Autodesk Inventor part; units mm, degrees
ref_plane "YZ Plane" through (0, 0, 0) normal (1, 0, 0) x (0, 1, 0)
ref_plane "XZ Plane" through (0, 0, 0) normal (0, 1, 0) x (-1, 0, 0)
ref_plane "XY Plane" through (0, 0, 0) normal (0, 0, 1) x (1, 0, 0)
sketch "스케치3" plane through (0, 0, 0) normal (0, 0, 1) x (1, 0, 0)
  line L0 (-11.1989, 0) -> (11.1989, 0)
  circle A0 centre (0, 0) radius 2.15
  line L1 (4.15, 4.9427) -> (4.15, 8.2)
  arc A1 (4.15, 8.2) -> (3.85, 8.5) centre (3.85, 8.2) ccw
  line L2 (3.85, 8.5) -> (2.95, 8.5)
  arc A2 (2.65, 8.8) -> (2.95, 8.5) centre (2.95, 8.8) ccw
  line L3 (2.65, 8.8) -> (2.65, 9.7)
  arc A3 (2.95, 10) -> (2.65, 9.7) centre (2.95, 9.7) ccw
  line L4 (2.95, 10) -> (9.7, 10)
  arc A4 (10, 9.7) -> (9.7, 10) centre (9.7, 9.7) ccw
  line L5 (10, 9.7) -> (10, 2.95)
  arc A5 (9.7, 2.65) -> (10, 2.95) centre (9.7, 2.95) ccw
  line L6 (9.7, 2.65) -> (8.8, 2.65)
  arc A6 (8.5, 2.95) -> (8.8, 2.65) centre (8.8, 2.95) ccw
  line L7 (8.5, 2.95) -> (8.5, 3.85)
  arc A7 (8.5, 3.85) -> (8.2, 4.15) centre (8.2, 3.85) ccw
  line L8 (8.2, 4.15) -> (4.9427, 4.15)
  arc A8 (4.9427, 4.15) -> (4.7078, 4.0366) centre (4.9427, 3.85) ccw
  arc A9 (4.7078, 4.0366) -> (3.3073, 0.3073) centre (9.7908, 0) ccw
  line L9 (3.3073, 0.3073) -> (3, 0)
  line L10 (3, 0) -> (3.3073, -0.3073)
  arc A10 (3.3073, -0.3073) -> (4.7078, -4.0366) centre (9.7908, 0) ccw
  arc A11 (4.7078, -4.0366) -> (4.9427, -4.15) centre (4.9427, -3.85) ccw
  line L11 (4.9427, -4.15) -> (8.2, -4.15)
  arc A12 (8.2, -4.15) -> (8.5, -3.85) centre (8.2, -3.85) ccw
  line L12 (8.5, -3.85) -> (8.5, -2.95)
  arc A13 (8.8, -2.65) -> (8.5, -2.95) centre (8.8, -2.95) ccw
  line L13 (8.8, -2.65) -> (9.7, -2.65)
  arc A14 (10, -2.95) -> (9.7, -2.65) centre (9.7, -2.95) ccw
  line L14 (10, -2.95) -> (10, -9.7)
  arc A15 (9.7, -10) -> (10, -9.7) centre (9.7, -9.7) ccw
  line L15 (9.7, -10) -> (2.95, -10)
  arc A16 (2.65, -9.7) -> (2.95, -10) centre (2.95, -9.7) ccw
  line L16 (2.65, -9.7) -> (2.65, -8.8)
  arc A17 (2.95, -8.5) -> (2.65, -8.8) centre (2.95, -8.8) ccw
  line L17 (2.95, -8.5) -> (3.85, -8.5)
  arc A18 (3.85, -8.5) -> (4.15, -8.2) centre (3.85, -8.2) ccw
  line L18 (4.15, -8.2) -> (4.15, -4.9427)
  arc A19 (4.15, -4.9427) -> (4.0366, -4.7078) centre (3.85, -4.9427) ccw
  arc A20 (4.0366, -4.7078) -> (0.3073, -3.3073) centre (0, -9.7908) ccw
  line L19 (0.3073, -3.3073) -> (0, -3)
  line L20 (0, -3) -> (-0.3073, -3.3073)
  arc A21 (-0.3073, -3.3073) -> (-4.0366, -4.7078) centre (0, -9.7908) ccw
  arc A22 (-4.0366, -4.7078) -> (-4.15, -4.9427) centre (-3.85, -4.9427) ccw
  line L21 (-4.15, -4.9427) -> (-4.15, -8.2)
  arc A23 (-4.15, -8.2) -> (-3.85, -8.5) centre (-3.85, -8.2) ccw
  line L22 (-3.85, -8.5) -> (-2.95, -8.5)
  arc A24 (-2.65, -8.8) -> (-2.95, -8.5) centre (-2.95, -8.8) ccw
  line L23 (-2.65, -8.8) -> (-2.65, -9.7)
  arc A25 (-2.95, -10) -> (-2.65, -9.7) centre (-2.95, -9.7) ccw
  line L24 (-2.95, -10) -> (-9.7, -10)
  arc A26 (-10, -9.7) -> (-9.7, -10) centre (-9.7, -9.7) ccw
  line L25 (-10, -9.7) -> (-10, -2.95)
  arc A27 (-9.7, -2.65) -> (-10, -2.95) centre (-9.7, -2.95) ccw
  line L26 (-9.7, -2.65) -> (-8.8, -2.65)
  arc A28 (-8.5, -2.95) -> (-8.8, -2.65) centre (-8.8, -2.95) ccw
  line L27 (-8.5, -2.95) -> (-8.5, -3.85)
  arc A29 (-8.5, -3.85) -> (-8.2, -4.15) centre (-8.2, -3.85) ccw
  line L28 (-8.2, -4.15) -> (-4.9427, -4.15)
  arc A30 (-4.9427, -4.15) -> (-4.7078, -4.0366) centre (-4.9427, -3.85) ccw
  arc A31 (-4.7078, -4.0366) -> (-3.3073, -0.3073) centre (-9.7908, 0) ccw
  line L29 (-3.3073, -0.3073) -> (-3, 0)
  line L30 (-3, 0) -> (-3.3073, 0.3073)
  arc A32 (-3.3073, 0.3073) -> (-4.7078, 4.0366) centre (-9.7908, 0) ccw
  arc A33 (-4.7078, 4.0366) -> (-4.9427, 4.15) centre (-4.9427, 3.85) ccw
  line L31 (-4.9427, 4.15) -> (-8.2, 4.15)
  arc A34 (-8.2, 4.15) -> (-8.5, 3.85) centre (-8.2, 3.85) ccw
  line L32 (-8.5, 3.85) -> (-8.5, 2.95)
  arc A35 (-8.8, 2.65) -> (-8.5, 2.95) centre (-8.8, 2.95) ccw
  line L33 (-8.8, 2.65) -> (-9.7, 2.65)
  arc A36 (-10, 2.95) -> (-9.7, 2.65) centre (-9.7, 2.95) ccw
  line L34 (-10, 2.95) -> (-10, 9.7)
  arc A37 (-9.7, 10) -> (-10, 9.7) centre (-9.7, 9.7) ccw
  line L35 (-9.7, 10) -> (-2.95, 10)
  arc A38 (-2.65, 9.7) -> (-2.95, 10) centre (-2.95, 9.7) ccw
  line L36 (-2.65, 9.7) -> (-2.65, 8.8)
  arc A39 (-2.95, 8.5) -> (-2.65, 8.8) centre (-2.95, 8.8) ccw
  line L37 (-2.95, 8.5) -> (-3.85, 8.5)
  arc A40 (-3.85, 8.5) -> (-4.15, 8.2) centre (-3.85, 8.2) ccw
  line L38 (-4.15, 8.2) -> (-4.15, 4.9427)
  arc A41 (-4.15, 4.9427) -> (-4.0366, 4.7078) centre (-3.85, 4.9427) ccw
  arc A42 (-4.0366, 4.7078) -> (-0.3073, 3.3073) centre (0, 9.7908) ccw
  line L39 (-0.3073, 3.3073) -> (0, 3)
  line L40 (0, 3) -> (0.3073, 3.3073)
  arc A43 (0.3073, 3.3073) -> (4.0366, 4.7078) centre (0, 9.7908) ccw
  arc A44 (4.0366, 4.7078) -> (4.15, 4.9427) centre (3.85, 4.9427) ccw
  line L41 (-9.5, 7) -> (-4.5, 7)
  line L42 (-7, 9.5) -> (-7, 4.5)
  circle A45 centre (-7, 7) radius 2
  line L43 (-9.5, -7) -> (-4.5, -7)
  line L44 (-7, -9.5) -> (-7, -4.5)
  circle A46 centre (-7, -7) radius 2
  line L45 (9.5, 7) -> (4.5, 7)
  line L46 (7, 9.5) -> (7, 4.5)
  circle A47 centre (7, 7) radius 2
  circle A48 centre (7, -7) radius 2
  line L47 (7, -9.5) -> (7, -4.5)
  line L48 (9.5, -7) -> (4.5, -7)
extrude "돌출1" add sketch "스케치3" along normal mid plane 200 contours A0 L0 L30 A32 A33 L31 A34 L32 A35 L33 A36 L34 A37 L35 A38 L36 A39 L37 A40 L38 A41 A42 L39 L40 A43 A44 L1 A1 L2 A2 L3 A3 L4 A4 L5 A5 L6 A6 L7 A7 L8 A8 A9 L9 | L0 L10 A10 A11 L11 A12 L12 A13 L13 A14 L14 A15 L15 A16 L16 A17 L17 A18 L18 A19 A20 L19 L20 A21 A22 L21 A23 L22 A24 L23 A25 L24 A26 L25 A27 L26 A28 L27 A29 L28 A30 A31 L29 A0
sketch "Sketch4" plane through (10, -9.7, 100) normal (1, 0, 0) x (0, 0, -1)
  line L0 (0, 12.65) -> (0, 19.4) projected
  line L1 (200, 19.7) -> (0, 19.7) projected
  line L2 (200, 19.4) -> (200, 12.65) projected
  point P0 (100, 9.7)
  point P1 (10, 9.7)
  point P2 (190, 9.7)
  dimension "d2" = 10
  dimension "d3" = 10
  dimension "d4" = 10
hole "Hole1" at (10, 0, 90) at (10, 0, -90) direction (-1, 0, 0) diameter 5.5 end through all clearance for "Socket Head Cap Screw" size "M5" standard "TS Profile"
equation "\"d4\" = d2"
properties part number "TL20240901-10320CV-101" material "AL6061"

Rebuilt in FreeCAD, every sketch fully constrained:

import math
import FreeCAD as App
import Part
import Sketcher
from FreeCAD import Vector

doc = App.newDocument("Part")
body = doc.addObject("PartDesign::Body", "Body")

# Sketch on XY plane
sketch1 = body.newObject("Sketcher::SketchObject", "Sketch")
sketch1.AttachmentSupport = (doc.getObject("XY_Plane"), [""])
sketch1.MapMode = "FlatFace"
sketch1.addGeometry([
    Part.LineSegment(Vector(-3.3073, 0.3073, 0), Vector(-3, 0, 0)),  # 0
    Part.LineSegment(Vector(-3, 0, 0), Vector(-3.3073, -0.3073, 0)),  # 1
    Part.ArcOfCircle(Part.Circle(Vector(-9.7908, 0, 0), Vector(0, 0, 1), 6.490779), math.radians(-38.4544), math.radians(-2.713631)),  # 2
    Part.ArcOfCircle(Part.Circle(Vector(-4.9427, -3.85, 0), Vector(0, 0, 1), 0.3), math.radians(-90), math.radians(-38.462947)),  # 3
    Part.LineSegment(Vector(-4.9427, -4.15, 0), Vector(-8.2, -4.15, 0)),  # 4
    Part.ArcOfCircle(Part.Circle(Vector(-8.2, -3.85, 0), Vector(0, 0, 1), 0.3), math.radians(180), math.radians(270)),  # 5
    Part.LineSegment(Vector(-8.5, -3.85, 0), Vector(-8.5, -2.95, 0)),  # 6
    Part.ArcOfCircle(Part.Circle(Vector(-8.8, -2.95, 0), Vector(0, 0, 1), 0.3), math.radians(0), math.radians(90)),  # 7
    Part.LineSegment(Vector(-8.8, -2.65, 0), Vector(-9.7, -2.65, 0)),  # 8
    Part.ArcOfCircle(Part.Circle(Vector(-9.7, -2.95, 0), Vector(0, 0, 1), 0.3), math.radians(90), math.radians(180)),  # 9
    Part.LineSegment(Vector(-10, -2.95, 0), Vector(-10, -9.7, 0)),  # 10
    Part.ArcOfCircle(Part.Circle(Vector(-9.7, -9.7, 0), Vector(0, 0, 1), 0.3), math.radians(180), math.radians(270)),  # 11
    Part.LineSegment(Vector(-9.7, -10, 0), Vector(-2.95, -10, 0)),  # 12
    Part.ArcOfCircle(Part.Circle(Vector(-2.95, -9.7, 0), Vector(0, 0, 1), 0.3), math.radians(-90), math.radians(0)),  # 13
    Part.LineSegment(Vector(-2.65, -9.7, 0), Vector(-2.65, -8.8, 0)),  # 14
    Part.ArcOfCircle(Part.Circle(Vector(-2.95, -8.8, 0), Vector(0, 0, 1), 0.3), math.radians(0), math.radians(90)),  # 15
    Part.LineSegment(Vector(-2.95, -8.5, 0), Vector(-3.85, -8.5, 0)),  # 16
    Part.ArcOfCircle(Part.Circle(Vector(-3.85, -8.2, 0), Vector(0, 0, 1), 0.3), math.radians(180), math.radians(270)),  # 17
    Part.LineSegment(Vector(-4.15, -8.2, 0), Vector(-4.15, -4.9427, 0)),  # 18
    Part.ArcOfCircle(Part.Circle(Vector(-3.85, -4.9427, 0), Vector(0, 0, 1), 0.299996), math.radians(128.462947), math.radians(180)),  # 19
    Part.ArcOfCircle(Part.Circle(Vector(0, -9.7908, 0), Vector(0, 0, 1), 6.490842), math.radians(92.713631), math.radians(128.4544)),  # 20
    Part.LineSegment(Vector(-0.3073, -3.3073, 0), Vector(0, -3, 0)),  # 21
    Part.LineSegment(Vector(0, -3, 0), Vector(0.3073, -3.3073, 0)),  # 22
    Part.ArcOfCircle(Part.Circle(Vector(0, -9.7908, 0), Vector(0, 0, 1), 6.490779), math.radians(51.5456), math.radians(87.286369)),  # 23
    Part.ArcOfCircle(Part.Circle(Vector(3.85, -4.9427, 0), Vector(0, 0, 1), 0.3), math.radians(0), math.radians(51.537053)),  # 24
    Part.LineSegment(Vector(4.15, -4.9427, 0), Vector(4.15, -8.2, 0)),  # 25
    Part.ArcOfCircle(Part.Circle(Vector(3.85, -8.2, 0), Vector(0, 0, 1), 0.3), math.radians(-90), math.radians(0)),  # 26
    Part.LineSegment(Vector(3.85, -8.5, 0), Vector(2.95, -8.5, 0)),  # 27
    Part.ArcOfCircle(Part.Circle(Vector(2.95, -8.8, 0), Vector(0, 0, 1), 0.3), math.radians(90), math.radians(180)),  # 28
    Part.LineSegment(Vector(2.65, -8.8, 0), Vector(2.65, -9.7, 0)),  # 29
    Part.ArcOfCircle(Part.Circle(Vector(2.95, -9.7, 0), Vector(0, 0, 1), 0.3), math.radians(180), math.radians(270)),  # 30
    Part.LineSegment(Vector(2.95, -10, 0), Vector(9.7, -10, 0)),  # 31
    Part.ArcOfCircle(Part.Circle(Vector(9.7, -9.7, 0), Vector(0, 0, 1), 0.3), math.radians(-90), math.radians(0)),  # 32
    Part.LineSegment(Vector(10, -9.7, 0), Vector(10, -2.95, 0)),  # 33
    Part.ArcOfCircle(Part.Circle(Vector(9.7, -2.95, 0), Vector(0, 0, 1), 0.3), math.radians(0), math.radians(90)),  # 34
    Part.LineSegment(Vector(9.7, -2.65, 0), Vector(8.8, -2.65, 0)),  # 35
    Part.ArcOfCircle(Part.Circle(Vector(8.8, -2.95, 0), Vector(0, 0, 1), 0.3), math.radians(90), math.radians(180)),  # 36
    Part.LineSegment(Vector(8.5, -2.95, 0), Vector(8.5, -3.85, 0)),  # 37
    Part.ArcOfCircle(Part.Circle(Vector(8.2, -3.85, 0), Vector(0, 0, 1), 0.3), math.radians(-90), math.radians(0)),  # 38
    Part.LineSegment(Vector(8.2, -4.15, 0), Vector(4.9427, -4.15, 0)),  # 39
    Part.ArcOfCircle(Part.Circle(Vector(4.9427, -3.85, 0), Vector(0, 0, 1), 0.299996), math.radians(-141.537053), math.radians(-90)),  # 40
    Part.ArcOfCircle(Part.Circle(Vector(9.7908, 0, 0), Vector(0, 0, 1), 6.490842), math.radians(-177.286369), math.radians(-141.5456)),  # 41
    Part.LineSegment(Vector(3.3073, -0.3073, 0), Vector(3, 0, 0)),  # 42
    Part.LineSegment(Vector(3, 0, 0), Vector(3.3073, 0.3073, 0)),  # 43
    Part.ArcOfCircle(Part.Circle(Vector(9.7908, 0, 0), Vector(0, 0, 1), 6.490779), math.radians(141.5456), math.radians(177.286369)),  # 44
    Part.ArcOfCircle(Part.Circle(Vector(4.9427, 3.85, 0), Vector(0, 0, 1), 0.3), math.radians(90), math.radians(141.537053)),  # 45
    Part.LineSegment(Vector(4.9427, 4.15, 0), Vector(8.2, 4.15, 0)),  # 46
    Part.ArcOfCircle(Part.Circle(Vector(8.2, 3.85, 0), Vector(0, 0, 1), 0.3), math.radians(0), math.radians(90)),  # 47
    Part.LineSegment(Vector(8.5, 3.85, 0), Vector(8.5, 2.95, 0)),  # 48
    Part.ArcOfCircle(Part.Circle(Vector(8.8, 2.95, 0), Vector(0, 0, 1), 0.3), math.radians(180), math.radians(270)),  # 49
    Part.LineSegment(Vector(8.8, 2.65, 0), Vector(9.7, 2.65, 0)),  # 50
    Part.ArcOfCircle(Part.Circle(Vector(9.7, 2.95, 0), Vector(0, 0, 1), 0.3), math.radians(-90), math.radians(0)),  # 51
    Part.LineSegment(Vector(10, 2.95, 0), Vector(10, 9.7, 0)),  # 52
    Part.ArcOfCircle(Part.Circle(Vector(9.7, 9.7, 0), Vector(0, 0, 1), 0.3), math.radians(0), math.radians(90)),  # 53
    Part.LineSegment(Vector(9.7, 10, 0), Vector(2.95, 10, 0)),  # 54
    Part.ArcOfCircle(Part.Circle(Vector(2.95, 9.7, 0), Vector(0, 0, 1), 0.3), math.radians(90), math.radians(180)),  # 55
    Part.LineSegment(Vector(2.65, 9.7, 0), Vector(2.65, 8.8, 0)),  # 56
    Part.ArcOfCircle(Part.Circle(Vector(2.95, 8.8, 0), Vector(0, 0, 1), 0.3), math.radians(180), math.radians(270)),  # 57
    Part.LineSegment(Vector(2.95, 8.5, 0), Vector(3.85, 8.5, 0)),  # 58
    Part.ArcOfCircle(Part.Circle(Vector(3.85, 8.2, 0), Vector(0, 0, 1), 0.3), math.radians(0), math.radians(90)),  # 59
    Part.LineSegment(Vector(4.15, 8.2, 0), Vector(4.15, 4.9427, 0)),  # 60
    Part.ArcOfCircle(Part.Circle(Vector(3.85, 4.9427, 0), Vector(0, 0, 1), 0.299996), math.radians(-51.537053), math.radians(0)),  # 61
    Part.ArcOfCircle(Part.Circle(Vector(0, 9.7908, 0), Vector(0, 0, 1), 6.490842), math.radians(-87.286369), math.radians(-51.5456)),  # 62
    Part.LineSegment(Vector(0.3073, 3.3073, 0), Vector(0, 3, 0)),  # 63
    Part.LineSegment(Vector(0, 3, 0), Vector(-0.3073, 3.3073, 0)),  # 64
    Part.ArcOfCircle(Part.Circle(Vector(0, 9.7908, 0), Vector(0, 0, 1), 6.490779), math.radians(-128.4544), math.radians(-92.713631)),  # 65
    Part.ArcOfCircle(Part.Circle(Vector(-3.85, 4.9427, 0), Vector(0, 0, 1), 0.3), math.radians(180), math.radians(231.537053)),  # 66
    Part.LineSegment(Vector(-4.15, 4.9427, 0), Vector(-4.15, 8.2, 0)),  # 67
    Part.ArcOfCircle(Part.Circle(Vector(-3.85, 8.2, 0), Vector(0, 0, 1), 0.3), math.radians(90), math.radians(180)),  # 68
    Part.LineSegment(Vector(-3.85, 8.5, 0), Vector(-2.95, 8.5, 0)),  # 69
    Part.ArcOfCircle(Part.Circle(Vector(-2.95, 8.8, 0), Vector(0, 0, 1), 0.3), math.radians(-90), math.radians(0)),  # 70
    Part.LineSegment(Vector(-2.65, 8.8, 0), Vector(-2.65, 9.7, 0)),  # 71
    Part.ArcOfCircle(Part.Circle(Vector(-2.95, 9.7, 0), Vector(0, 0, 1), 0.3), math.radians(0), math.radians(90)),  # 72
    Part.LineSegment(Vector(-2.95, 10, 0), Vector(-9.7, 10, 0)),  # 73
    Part.ArcOfCircle(Part.Circle(Vector(-9.7, 9.7, 0), Vector(0, 0, 1), 0.3), math.radians(90), math.radians(180)),  # 74
    Part.LineSegment(Vector(-10, 9.7, 0), Vector(-10, 2.95, 0)),  # 75
    Part.ArcOfCircle(Part.Circle(Vector(-9.7, 2.95, 0), Vector(0, 0, 1), 0.3), math.radians(180), math.radians(270)),  # 76
    Part.LineSegment(Vector(-9.7, 2.65, 0), Vector(-8.8, 2.65, 0)),  # 77
    Part.ArcOfCircle(Part.Circle(Vector(-8.8, 2.95, 0), Vector(0, 0, 1), 0.3), math.radians(-90), math.radians(0)),  # 78
    Part.LineSegment(Vector(-8.5, 2.95, 0), Vector(-8.5, 3.85, 0)),  # 79
    Part.ArcOfCircle(Part.Circle(Vector(-8.2, 3.85, 0), Vector(0, 0, 1), 0.3), math.radians(90), math.radians(180)),  # 80
    Part.LineSegment(Vector(-8.2, 4.15, 0), Vector(-4.9427, 4.15, 0)),  # 81
    Part.ArcOfCircle(Part.Circle(Vector(-4.9427, 3.85, 0), Vector(0, 0, 1), 0.299996), math.radians(38.462947), math.radians(90)),  # 82
    Part.ArcOfCircle(Part.Circle(Vector(-9.7908, 0, 0), Vector(0, 0, 1), 6.490842), math.radians(2.713631), math.radians(38.4544)),  # 83
    Part.Circle(Vector(0, 0, 0), Vector(0, 0, 1), 2.15),  # 84
    Part.Circle(Vector(-7, 7, 0), Vector(0, 0, 1), 2),  # 85
    Part.Circle(Vector(7, 7, 0), Vector(0, 0, 1), 2),  # 86
    Part.Circle(Vector(7, -7, 0), Vector(0, 0, 1), 2),  # 87
    Part.Circle(Vector(-7, -7, 0), Vector(0, 0, 1), 2),  # 88
], False)
sketch1.addConstraint([
    Sketcher.Constraint("Coincident", 0, 2, 1, 1),
    Sketcher.Constraint("Coincident", 1, 2, 2, 2),
    Sketcher.Constraint("Tangent", 2, 1, 3, 2),
    Sketcher.Constraint("Tangent", 3, 1, 4, 1),
    Sketcher.Constraint("Tangent", 4, 2, 5, 2),
    Sketcher.Constraint("Tangent", 5, 1, 6, 1),
    Sketcher.Constraint("Tangent", 6, 2, 7, 1),
    Sketcher.Constraint("Tangent", 7, 2, 8, 1),
    Sketcher.Constraint("Tangent", 8, 2, 9, 1),
    Sketcher.Constraint("Tangent", 9, 2, 10, 1),
    Sketcher.Constraint("Tangent", 10, 2, 11, 1),
    Sketcher.Constraint("Tangent", 11, 2, 12, 1),
    Sketcher.Constraint("Tangent", 12, 2, 13, 1),
    Sketcher.Constraint("Tangent", 13, 2, 14, 1),
    Sketcher.Constraint("Tangent", 14, 2, 15, 1),
    Sketcher.Constraint("Tangent", 15, 2, 16, 1),
    Sketcher.Constraint("Tangent", 16, 2, 17, 2),
    Sketcher.Constraint("Tangent", 17, 1, 18, 1),
    Sketcher.Constraint("Tangent", 18, 2, 19, 2),
    Sketcher.Constraint("Tangent", 19, 1, 20, 2),
    Sketcher.Constraint("Coincident", 20, 1, 21, 1),
    Sketcher.Constraint("Coincident", 21, 2, 22, 1),
    Sketcher.Constraint("Coincident", 22, 2, 23, 2),
    Sketcher.Constraint("Tangent", 23, 1, 24, 2),
    Sketcher.Constraint("Tangent", 24, 1, 25, 1),
    Sketcher.Constraint("Tangent", 25, 2, 26, 2),
    Sketcher.Constraint("Tangent", 26, 1, 27, 1),
    Sketcher.Constraint("Tangent", 27, 2, 28, 1),
    Sketcher.Constraint("Tangent", 28, 2, 29, 1),
    Sketcher.Constraint("Tangent", 29, 2, 30, 1),
    Sketcher.Constraint("Tangent", 30, 2, 31, 1),
    Sketcher.Constraint("Tangent", 31, 2, 32, 1),
    Sketcher.Constraint("Tangent", 32, 2, 33, 1),
    Sketcher.Constraint("Tangent", 33, 2, 34, 1),
    Sketcher.Constraint("Tangent", 34, 2, 35, 1),
    Sketcher.Constraint("Tangent", 35, 2, 36, 1),
    Sketcher.Constraint("Tangent", 36, 2, 37, 1),
    Sketcher.Constraint("Tangent", 37, 2, 38, 2),
    Sketcher.Constraint("Tangent", 38, 1, 39, 1),
    Sketcher.Constraint("Tangent", 39, 2, 40, 2),
    Sketcher.Constraint("Tangent", 40, 1, 41, 2),
    Sketcher.Constraint("Coincident", 41, 1, 42, 1),
    Sketcher.Constraint("Coincident", 42, 2, 43, 1),
    Sketcher.Constraint("Coincident", 43, 2, 44, 2),
    Sketcher.Constraint("Tangent", 44, 1, 45, 2),
    Sketcher.Constraint("Tangent", 45, 1, 46, 1),
    Sketcher.Constraint("Tangent", 46, 2, 47, 2),
    Sketcher.Constraint("Tangent", 47, 1, 48, 1),
    Sketcher.Constraint("Tangent", 48, 2, 49, 1),
    Sketcher.Constraint("Tangent", 49, 2, 50, 1),
    Sketcher.Constraint("Tangent", 50, 2, 51, 1),
    Sketcher.Constraint("Tangent", 51, 2, 52, 1),
    Sketcher.Constraint("Tangent", 52, 2, 53, 1),
    Sketcher.Constraint("Tangent", 53, 2, 54, 1),
    Sketcher.Constraint("Tangent", 54, 2, 55, 1),
    Sketcher.Constraint("Tangent", 55, 2, 56, 1),
    Sketcher.Constraint("Tangent", 56, 2, 57, 1),
    Sketcher.Constraint("Tangent", 57, 2, 58, 1),
    Sketcher.Constraint("Tangent", 58, 2, 59, 2),
    Sketcher.Constraint("Tangent", 59, 1, 60, 1),
    Sketcher.Constraint("Tangent", 60, 2, 61, 2),
    Sketcher.Constraint("Tangent", 61, 1, 62, 2),
    Sketcher.Constraint("Coincident", 62, 1, 63, 1),
    Sketcher.Constraint("Coincident", 63, 2, 64, 1),
    Sketcher.Constraint("Coincident", 64, 2, 65, 2),
    Sketcher.Constraint("Tangent", 65, 1, 66, 2),
    Sketcher.Constraint("Tangent", 66, 1, 67, 1),
    Sketcher.Constraint("Tangent", 67, 2, 68, 2),
    Sketcher.Constraint("Tangent", 68, 1, 69, 1),
    Sketcher.Constraint("Tangent", 69, 2, 70, 1),
    Sketcher.Constraint("Tangent", 70, 2, 71, 1),
    Sketcher.Constraint("Tangent", 71, 2, 72, 1),
    Sketcher.Constraint("Tangent", 72, 2, 73, 1),
    Sketcher.Constraint("Tangent", 73, 2, 74, 1),
    Sketcher.Constraint("Tangent", 74, 2, 75, 1),
    Sketcher.Constraint("Tangent", 75, 2, 76, 1),
    Sketcher.Constraint("Tangent", 76, 2, 77, 1),
    Sketcher.Constraint("Tangent", 77, 2, 78, 1),
    Sketcher.Constraint("Tangent", 78, 2, 79, 1),
    Sketcher.Constraint("Tangent", 79, 2, 80, 2),
    Sketcher.Constraint("Tangent", 80, 1, 81, 1),
    Sketcher.Constraint("Tangent", 81, 2, 82, 2),
    Sketcher.Constraint("Tangent", 82, 1, 83, 2),
    Sketcher.Constraint("Coincident", 83, 1, 0, 1),
    Sketcher.Constraint("Horizontal", 4),
    Sketcher.Constraint("Vertical", 6),
    Sketcher.Constraint("Horizontal", 8),
    Sketcher.Constraint("Vertical", 10),
    Sketcher.Constraint("Horizontal", 12),
    Sketcher.Constraint("Vertical", 14),
    Sketcher.Constraint("Horizontal", 16),
    Sketcher.Constraint("Vertical", 18),
    Sketcher.Constraint("Vertical", 25),
    Sketcher.Constraint("Horizontal", 27),
    Sketcher.Constraint("Vertical", 29),
    Sketcher.Constraint("Horizontal", 31),
    Sketcher.Constraint("Vertical", 33),
    Sketcher.Constraint("Horizontal", 35),
    Sketcher.Constraint("Vertical", 37),
    Sketcher.Constraint("Horizontal", 39),
    Sketcher.Constraint("Horizontal", 46),
    Sketcher.Constraint("Vertical", 48),
    Sketcher.Constraint("Horizontal", 50),
    Sketcher.Constraint("Vertical", 52),
    Sketcher.Constraint("Horizontal", 54),
    Sketcher.Constraint("Vertical", 56),
    Sketcher.Constraint("Horizontal", 58),
    Sketcher.Constraint("Vertical", 60),
    Sketcher.Constraint("Vertical", 67),
    Sketcher.Constraint("Horizontal", 69),
    Sketcher.Constraint("Vertical", 71),
    Sketcher.Constraint("Horizontal", 73),
    Sketcher.Constraint("Vertical", 75),
    Sketcher.Constraint("Horizontal", 77),
    Sketcher.Constraint("Vertical", 79),
    Sketcher.Constraint("Horizontal", 81),
    Sketcher.Constraint("Coincident", 84, 3, -1, 1),
    Sketcher.Constraint("Coincident", 23, 3, 20, 3),
    Sketcher.Constraint("Coincident", 44, 3, 41, 3),
    Sketcher.Constraint("Coincident", 65, 3, 62, 3),
    Sketcher.Constraint("Coincident", 83, 3, 2, 3),
    Sketcher.Constraint("Equal", 3, 5),
    Sketcher.Constraint("Equal", 5, 7),
    Sketcher.Constraint("Equal", 7, 9),
    Sketcher.Constraint("Equal", 9, 11),
    Sketcher.Constraint("Equal", 11, 13),
    Sketcher.Constraint("Equal", 13, 15),
    Sketcher.Constraint("Equal", 15, 17),
    Sketcher.Constraint("Equal", 17, 19),
    Sketcher.Constraint("Equal", 2, 20),
    Sketcher.Constraint("Equal", 20, 23),
    Sketcher.Constraint("Equal", 19, 24),
    Sketcher.Constraint("Equal", 24, 26),
    Sketcher.Constraint("Equal", 26, 28),
    Sketcher.Constraint("Equal", 28, 30),
    Sketcher.Constraint("Equal", 30, 32),
    Sketcher.Constraint("Equal", 32, 34),
    Sketcher.Constraint("Equal", 34, 36),
    Sketcher.Constraint("Equal", 36, 38),
    Sketcher.Constraint("Equal", 38, 40),
    Sketcher.Constraint("Equal", 23, 41),
    Sketcher.Constraint("Equal", 41, 44),
    Sketcher.Constraint("Equal", 40, 45),
    Sketcher.Constraint("Equal", 45, 47),
    Sketcher.Constraint("Equal", 47, 49),
    Sketcher.Constraint("Equal", 49, 51),
    Sketcher.Constraint("Equal", 51, 53),
    Sketcher.Constraint("Equal", 53, 55),
    Sketcher.Constraint("Equal", 55, 57),
    Sketcher.Constraint("Equal", 57, 59),
    Sketcher.Constraint("Equal", 59, 61),
    Sketcher.Constraint("Equal", 44, 62),
    Sketcher.Constraint("Equal", 62, 65),
    Sketcher.Constraint("Equal", 61, 66),
    Sketcher.Constraint("Equal", 66, 68),
    Sketcher.Constraint("Equal", 68, 70),
    Sketcher.Constraint("Equal", 70, 72),
    Sketcher.Constraint("Equal", 72, 74),
    Sketcher.Constraint("Equal", 74, 76),
    Sketcher.Constraint("Equal", 76, 78),
    Sketcher.Constraint("Equal", 78, 80),
    Sketcher.Constraint("Equal", 80, 82),
    Sketcher.Constraint("Equal", 65, 83),
    Sketcher.Constraint("Equal", 85, 86),
    Sketcher.Constraint("Equal", 86, 87),
    Sketcher.Constraint("Equal", 87, 88),
    Sketcher.Constraint("Symmetric", 2, 3, 41, 3, -1, 1),
    Sketcher.Constraint("Symmetric", 5, 3, 47, 3, -1, 1),
    Sketcher.Constraint("Symmetric", 9, 3, 51, 3, -1, 1),
    Sketcher.Constraint("Symmetric", 13, 3, 55, 3, -1, 1),
    Sketcher.Constraint("Symmetric", 17, 3, 59, 3, -1, 1),
    Sketcher.Constraint("Symmetric", 20, 3, 62, 3, -1, 1),
    Sketcher.Constraint("Symmetric", 26, 3, 68, 3, -1, 1),
    Sketcher.Constraint("Symmetric", 30, 3, 72, 3, -1, 1),
    Sketcher.Constraint("Symmetric", 34, 3, 76, 3, -1, 1),
    Sketcher.Constraint("Symmetric", 38, 3, 80, 3, -1, 1),
    Sketcher.Constraint("Symmetric", 85, 3, 87, 3, -1, 1),
    Sketcher.Constraint("Symmetric", 86, 3, 88, 3, -1, 1),
    Sketcher.Constraint("Symmetric", 0, 2, 42, 2, -1, 1),
    Sketcher.Constraint("Symmetric", 21, 2, 63, 2, -1, 1),
    Sketcher.Constraint("Symmetric", 19, 3, 24, 3, -2),
    Sketcher.Constraint("Symmetric", 15, 3, 28, 3, -2),
    Sketcher.Constraint("Symmetric", 11, 3, 32, 3, -2),
    Sketcher.Constraint("Symmetric", 7, 3, 36, 3, -2),
    Sketcher.Constraint("Symmetric", 3, 3, 40, 3, -2),
    Sketcher.Constraint("Symmetric", 85, 3, 86, 3, -2),
    Sketcher.Constraint("PointOnObject", 0, 2, -1),
    Sketcher.Constraint("PointOnObject", 21, 2, -2),
    Sketcher.Constraint("Perpendicular", 0, 1),
    Sketcher.Constraint("Parallel", 1, 21),
    Sketcher.Constraint("Perpendicular", 21, 22),
    Sketcher.Constraint("Parallel", 22, 42),
    Sketcher.Constraint("Perpendicular", 42, 43),
    Sketcher.Constraint("Parallel", 43, 63),
    Sketcher.Constraint("Perpendicular", 63, 64),
    Sketcher.Constraint("Horizontal", 20, 1, 22, 2),
    Sketcher.Constraint("Equal", 8, 16),
    Sketcher.Constraint("Equal", 77, 6),
    Sketcher.Constraint("Equal", 73, 10),
    Sketcher.Constraint("Equal", 6, 14),
    Sketcher.Constraint("Equal", 81, 18),
    Sketcher.Constraint("Equal", 1, 21),
    Sketcher.Constraint("Diameter", 85, 4.0),
    Sketcher.Constraint("Diameter", 84, 4.3),
    Sketcher.Constraint("Radius", 3, 0.3),
    Sketcher.Constraint("DistanceX", 8, 2, 8, 1, 0.9),
    Sketcher.Constraint("DistanceX", 85, 3, -1, 1, 7.0),
    Sketcher.Constraint("DistanceY", -1, 1, 85, 3, 7.0),
    Sketcher.Constraint("DistanceX", 0, 2, -1, 1, 3.0),
    Sketcher.Constraint("DistanceX", 9, 2, -1, 1, 10.0),
    Sketcher.Constraint("DistanceY", 11, 2, -1, 1, 10.0),
    Sketcher.Constraint("DistanceX", 12, 1, 12, 2, 6.75),
    Sketcher.Constraint("Radius", 2, 6.4908),
    Sketcher.Constraint("DistanceX", 4, 2, 4, 1, 3.2573),
])
pad1 = body.newObject("PartDesign::Pad", "Pad")
pad1.Profile = sketch1
pad1.Length = 200
pad1.Midplane = True

# Sketch on YZ plane
sketch2 = body.newObject("Sketcher::SketchObject", "Sketch001")
sketch2.AttachmentSupport = (doc.getObject("YZ_Plane"), [""])
sketch2.MapMode = "FlatFace"
sketch2.AttachmentOffset = App.Placement(Vector(0, 0, 10), App.Rotation())
sketch2.addGeometry([
    Part.Circle(Vector(0, 90, 0), Vector(0, 0, 1), 2.75),
    Part.Circle(Vector(0, -90, 0), Vector(0, 0, 1), 2.75),
], False)
sketch2.addConstraint([
    Sketcher.Constraint("Equal", 0, 1),
    Sketcher.Constraint("Symmetric", 0, 3, 1, 3, -1, 1),
    Sketcher.Constraint("PointOnObject", 0, 3, -2),
    Sketcher.Constraint("Diameter", 0, 5.5),
    Sketcher.Constraint("DistanceY", -1, 1, 0, 3, 90.0),
])
doc.recompute()
hole = body.newObject("PartDesign::Hole", "Hole")
hole.Profile = sketch2
hole.ThreadType = "None"
hole.Diameter = 5.5
hole.DepthType = "ThroughAll"

doc.recompute()
